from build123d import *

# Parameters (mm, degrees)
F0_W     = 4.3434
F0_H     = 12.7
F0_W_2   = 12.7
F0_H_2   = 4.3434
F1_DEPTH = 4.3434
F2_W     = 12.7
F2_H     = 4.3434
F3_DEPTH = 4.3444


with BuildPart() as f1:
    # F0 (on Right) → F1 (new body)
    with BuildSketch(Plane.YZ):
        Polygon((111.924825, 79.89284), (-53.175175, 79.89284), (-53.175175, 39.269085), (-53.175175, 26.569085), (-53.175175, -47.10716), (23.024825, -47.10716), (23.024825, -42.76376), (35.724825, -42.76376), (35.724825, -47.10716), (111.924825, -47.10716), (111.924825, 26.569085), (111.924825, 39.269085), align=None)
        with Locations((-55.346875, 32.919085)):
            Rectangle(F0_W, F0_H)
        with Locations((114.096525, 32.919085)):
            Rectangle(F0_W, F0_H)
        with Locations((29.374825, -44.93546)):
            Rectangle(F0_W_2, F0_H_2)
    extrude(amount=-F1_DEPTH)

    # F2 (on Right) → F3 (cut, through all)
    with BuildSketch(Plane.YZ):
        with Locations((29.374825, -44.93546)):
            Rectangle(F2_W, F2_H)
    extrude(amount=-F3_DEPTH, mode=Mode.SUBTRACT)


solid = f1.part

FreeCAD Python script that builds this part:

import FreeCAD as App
import Part
import Sketcher
Q = App.Units.Quantity


def add_polygon(sketch, points):
    """Adds a closed chain of lines whose ends are joined by coincident constraints."""
    first, n = sketch.GeometryCount, len(points)
    for a, b in zip(points, points[1:] + points[:1]):
        sketch.addGeometry(Part.LineSegment(App.Vector(*a, 0), App.Vector(*b, 0)), False)
    for i in range(n):
        sketch.addConstraint(Sketcher.Constraint("Coincident", first + i, 2, first + (i + 1) % n, 1))

doc = App.newDocument("Part")
body = doc.addObject("PartDesign::Body", "Body")

sketch1 = body.newObject("Sketcher::SketchObject", "Sketch")
sketch1.AttachmentSupport = (doc.getObject("YZ_Plane"), [""])
sketch1.MapMode = "FlatFace"
add_polygon(sketch1, [(111.9, 79.9), (-53.2, 79.9), (-53.2, 39.3), (-57.5, 39.3), (-57.5, 26.6), (-53.2, 26.6), (-53.2, -47.1), (111.9, -47.1), (111.9, 26.6), (116.3, 26.6), (116.3, 39.3), (111.9, 39.3)])
sketch1.addConstraint(Sketcher.Constraint("Horizontal", 0))
sketch1.addConstraint(Sketcher.Constraint("Vertical", 1))
sketch1.addConstraint(Sketcher.Constraint("Horizontal", 2))
sketch1.addConstraint(Sketcher.Constraint("Vertical", 3))
sketch1.addConstraint(Sketcher.Constraint("Horizontal", 4))
sketch1.addConstraint(Sketcher.Constraint("Vertical", 5))
sketch1.addConstraint(Sketcher.Constraint("Horizontal", 6))
sketch1.addConstraint(Sketcher.Constraint("Vertical", 7))
sketch1.addConstraint(Sketcher.Constraint("Horizontal", 8))
sketch1.addConstraint(Sketcher.Constraint("Vertical", 9))
sketch1.addConstraint(Sketcher.Constraint("Horizontal", 10))
sketch1.addConstraint(Sketcher.Constraint("Vertical", 11))
sketch1.addConstraint(Sketcher.Constraint("Horizontal", 4, 2, 7, 2))
sketch1.addConstraint(Sketcher.Constraint("Horizontal", 2, 2, 9, 2))
sketch1.addConstraint(Sketcher.Constraint("Vertical", 1, 2, 4, 2))
sketch1.addConstraint(Sketcher.Constraint("Vertical", 7, 2, 10, 2))
sketch1.addConstraint(Sketcher.Constraint("Equal", 4, 8))
sketch1.addConstraint(Sketcher.Constraint("DistanceX", 0, 2, 0, 1, Q("6.5 in")))
sketch1.addConstraint(Sketcher.Constraint("DistanceY", 3, 2, 3, 1, Q("0.5 in")))
sketch1.addConstraint(Sketcher.Constraint("DistanceY", 5, 2, 0, 2, Q("5 in")))
sketch1.addConstraint(Sketcher.Constraint("DistanceX", 2, 2, 2, 1, Q("0.171 in")))
sketch1.addConstraint(Sketcher.Constraint("DistanceY", 1, 2, 1, 1, 40.623755))
sketch1.addConstraint(Sketcher.Constraint("DistanceY", -1, 1, 0, 2, 79.89284))
sketch1.addConstraint(Sketcher.Constraint("DistanceX", 0, 2, -1, 1, 53.175175))
pad1 = body.newObject("PartDesign::Pad", "Pad")
pad1.Profile = sketch1
pad1.Length = Q("0.171 in")
pad1.Reversed = True

sketch2 = body.newObject("Sketcher::SketchObject", "Sketch001")
sketch2.AttachmentSupport = (doc.getObject("YZ_Plane"), [""])
sketch2.MapMode = "FlatFace"
add_polygon(sketch2, [(23, -42.8), (23, -47.1), (35.7, -47.1), (35.7, -42.8)])
sketch2.addConstraint(Sketcher.Constraint("Vertical", 0))
sketch2.addConstraint(Sketcher.Constraint("Horizontal", 1))
sketch2.addConstraint(Sketcher.Constraint("Vertical", 2))
sketch2.addConstraint(Sketcher.Constraint("Horizontal", 3))
sketch2.addConstraint(Sketcher.Constraint("DistanceX", 1, 1, 1, 2, Q("0.5 in")))
sketch2.addConstraint(Sketcher.Constraint("DistanceY", 0, 2, 0, 1, Q("0.171 in")))
sketch2.addConstraint(Sketcher.Constraint("DistanceY", 0, 2, -1, 1, 47.10716))
sketch2.addConstraint(Sketcher.Constraint("DistanceX", -1, 1, 0, 2, 23.024825))
pocket1 = body.newObject("PartDesign::Pocket", "Pocket")
pocket1.Profile = sketch2
pocket1.Type = "ThroughAll"

doc.recompute()
